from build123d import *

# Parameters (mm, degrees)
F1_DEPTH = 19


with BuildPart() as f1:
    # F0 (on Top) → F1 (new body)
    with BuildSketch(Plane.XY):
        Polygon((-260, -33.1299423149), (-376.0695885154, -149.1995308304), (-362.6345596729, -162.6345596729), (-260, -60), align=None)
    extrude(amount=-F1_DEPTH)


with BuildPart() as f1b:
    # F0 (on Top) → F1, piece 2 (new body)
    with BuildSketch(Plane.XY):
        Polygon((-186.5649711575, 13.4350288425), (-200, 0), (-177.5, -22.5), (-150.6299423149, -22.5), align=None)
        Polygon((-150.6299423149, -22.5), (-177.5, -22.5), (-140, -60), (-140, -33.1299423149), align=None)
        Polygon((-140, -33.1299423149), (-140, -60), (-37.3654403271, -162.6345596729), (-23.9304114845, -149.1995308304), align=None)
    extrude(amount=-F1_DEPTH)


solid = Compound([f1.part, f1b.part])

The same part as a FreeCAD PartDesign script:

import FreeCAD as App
import Part
import Sketcher
Q = App.Units.Quantity

doc = App.newDocument("Part")
body = doc.addObject("PartDesign::Body", "Body")

sketch1 = body.newObject("Sketcher::SketchObject", "Sketch")
sketch1.AttachmentSupport = (doc.getObject("XY_Plane"), [""])
sketch1.MapMode = "FlatFace"
sketch1.addGeometry(Part.LineSegment(App.Vector(-260, -33.129942, 0), App.Vector(-376.069589, -149.199531, 0)), False)
sketch1.addGeometry(Part.LineSegment(App.Vector(-376.069589, -149.199531, 0), App.Vector(-362.63456, -162.63456, 0)), False)
sketch1.addGeometry(Part.LineSegment(App.Vector(-362.63456, -162.63456, 0), App.Vector(-260, -60, 0)), False)
sketch1.addGeometry(Part.LineSegment(App.Vector(-260, -60, 0), App.Vector(-260, -33.129942, 0)), False)
sketch1.addConstraint(Sketcher.Constraint("Coincident", 0, 2, 1, 1))
sketch1.addConstraint(Sketcher.Constraint("Coincident", 1, 2, 2, 1))
sketch1.addConstraint(Sketcher.Constraint("Coincident", 2, 2, 3, 1))
sketch1.addConstraint(Sketcher.Constraint("Coincident", 3, 2, 0, 1))
sketch1.addConstraint(Sketcher.Constraint("Vertical", 3))
sketch1.addConstraint(Sketcher.Constraint("Perpendicular", 0, 1))
sketch1.addConstraint(Sketcher.Constraint("Perpendicular", 1, 2))
sketch1.addConstraint(Sketcher.Constraint("Angle", 0, Q("-135 deg")))
sketch1.addConstraint(Sketcher.Constraint("Distance", 1, Q("19 mm")))
sketch1.addConstraint(Sketcher.Constraint("DistanceX", 2, 2, -1, 1, Q("260 mm")))
sketch1.addConstraint(Sketcher.Constraint("DistanceY", 2, 2, -1, 1, Q("60 mm")))
sketch1.addConstraint(Sketcher.Constraint("DistanceX", 0, 2, -1, 1, Q("376.069589 mm")))
pad1 = body.newObject("PartDesign::Pad", "Pad")
pad1.Profile = sketch1
pad1.Length = 19
pad1.Reversed = True
body2 = doc.addObject("PartDesign::Body", "Body001")

sketch2 = body2.newObject("Sketcher::SketchObject", "Sketch001")
sketch2.AttachmentSupport = (doc.getObject("XY_Plane001"), [""])
sketch2.MapMode = "FlatFace"
sketch2.addGeometry(Part.LineSegment(App.Vector(-186.564971, 13.435029, 0), App.Vector(-200, 0, 0)), False)
sketch2.addGeometry(Part.LineSegment(App.Vector(-200, 0, 0), App.Vector(-37.36544, -162.63456, 0)), False)
sketch2.addGeometry(Part.LineSegment(App.Vector(-37.36544, -162.63456, 0), App.Vector(-23.930411, -149.199531, 0)), False)
sketch2.addGeometry(Part.LineSegment(App.Vector(-23.930411, -149.199531, 0), App.Vector(-150.629942, -22.5, 0)), False)
sketch2.addGeometry(Part.LineSegment(App.Vector(-150.629942, -22.5, 0), App.Vector(-186.564971, 13.435029, 0)), False)
sketch2.addConstraint(Sketcher.Constraint("Coincident", 0, 2, 1, 1))
sketch2.addConstraint(Sketcher.Constraint("Coincident", 1, 2, 2, 1))
sketch2.addConstraint(Sketcher.Constraint("Coincident", 2, 2, 3, 1))
sketch2.addConstraint(Sketcher.Constraint("Coincident", 3, 2, 4, 1))
sketch2.addConstraint(Sketcher.Constraint("Coincident", 4, 2, 0, 1))
sketch2.addConstraint(Sketcher.Constraint("PointOnObject", 0, 2, -1))
sketch2.addConstraint(Sketcher.Constraint("Perpendicular", 0, 1))
sketch2.addConstraint(Sketcher.Constraint("Perpendicular", 1, 2))
sketch2.addConstraint(Sketcher.Constraint("Perpendicular", 2, 3))
sketch2.addConstraint(Sketcher.Constraint("Parallel", 3, 4))
sketch2.addConstraint(Sketcher.Constraint("Angle", 0, Q("-135 deg")))
sketch2.addConstraint(Sketcher.Constraint("Distance", 0, Q("19 mm")))
sketch2.addConstraint(Sketcher.Constraint("Distance", 1, Q("230 mm")))
sketch2.addConstraint(Sketcher.Constraint("DistanceX", 0, 2, -1, 1, Q("200 mm")))
sketch2.addConstraint(Sketcher.Constraint("DistanceY", 3, 2, -1, 1, Q("22.5 mm")))
pad2 = body2.newObject("PartDesign::Pad", "Pad001")
pad2.Profile = sketch2
pad2.Length = 19
pad2.Reversed = True

doc.recompute()
